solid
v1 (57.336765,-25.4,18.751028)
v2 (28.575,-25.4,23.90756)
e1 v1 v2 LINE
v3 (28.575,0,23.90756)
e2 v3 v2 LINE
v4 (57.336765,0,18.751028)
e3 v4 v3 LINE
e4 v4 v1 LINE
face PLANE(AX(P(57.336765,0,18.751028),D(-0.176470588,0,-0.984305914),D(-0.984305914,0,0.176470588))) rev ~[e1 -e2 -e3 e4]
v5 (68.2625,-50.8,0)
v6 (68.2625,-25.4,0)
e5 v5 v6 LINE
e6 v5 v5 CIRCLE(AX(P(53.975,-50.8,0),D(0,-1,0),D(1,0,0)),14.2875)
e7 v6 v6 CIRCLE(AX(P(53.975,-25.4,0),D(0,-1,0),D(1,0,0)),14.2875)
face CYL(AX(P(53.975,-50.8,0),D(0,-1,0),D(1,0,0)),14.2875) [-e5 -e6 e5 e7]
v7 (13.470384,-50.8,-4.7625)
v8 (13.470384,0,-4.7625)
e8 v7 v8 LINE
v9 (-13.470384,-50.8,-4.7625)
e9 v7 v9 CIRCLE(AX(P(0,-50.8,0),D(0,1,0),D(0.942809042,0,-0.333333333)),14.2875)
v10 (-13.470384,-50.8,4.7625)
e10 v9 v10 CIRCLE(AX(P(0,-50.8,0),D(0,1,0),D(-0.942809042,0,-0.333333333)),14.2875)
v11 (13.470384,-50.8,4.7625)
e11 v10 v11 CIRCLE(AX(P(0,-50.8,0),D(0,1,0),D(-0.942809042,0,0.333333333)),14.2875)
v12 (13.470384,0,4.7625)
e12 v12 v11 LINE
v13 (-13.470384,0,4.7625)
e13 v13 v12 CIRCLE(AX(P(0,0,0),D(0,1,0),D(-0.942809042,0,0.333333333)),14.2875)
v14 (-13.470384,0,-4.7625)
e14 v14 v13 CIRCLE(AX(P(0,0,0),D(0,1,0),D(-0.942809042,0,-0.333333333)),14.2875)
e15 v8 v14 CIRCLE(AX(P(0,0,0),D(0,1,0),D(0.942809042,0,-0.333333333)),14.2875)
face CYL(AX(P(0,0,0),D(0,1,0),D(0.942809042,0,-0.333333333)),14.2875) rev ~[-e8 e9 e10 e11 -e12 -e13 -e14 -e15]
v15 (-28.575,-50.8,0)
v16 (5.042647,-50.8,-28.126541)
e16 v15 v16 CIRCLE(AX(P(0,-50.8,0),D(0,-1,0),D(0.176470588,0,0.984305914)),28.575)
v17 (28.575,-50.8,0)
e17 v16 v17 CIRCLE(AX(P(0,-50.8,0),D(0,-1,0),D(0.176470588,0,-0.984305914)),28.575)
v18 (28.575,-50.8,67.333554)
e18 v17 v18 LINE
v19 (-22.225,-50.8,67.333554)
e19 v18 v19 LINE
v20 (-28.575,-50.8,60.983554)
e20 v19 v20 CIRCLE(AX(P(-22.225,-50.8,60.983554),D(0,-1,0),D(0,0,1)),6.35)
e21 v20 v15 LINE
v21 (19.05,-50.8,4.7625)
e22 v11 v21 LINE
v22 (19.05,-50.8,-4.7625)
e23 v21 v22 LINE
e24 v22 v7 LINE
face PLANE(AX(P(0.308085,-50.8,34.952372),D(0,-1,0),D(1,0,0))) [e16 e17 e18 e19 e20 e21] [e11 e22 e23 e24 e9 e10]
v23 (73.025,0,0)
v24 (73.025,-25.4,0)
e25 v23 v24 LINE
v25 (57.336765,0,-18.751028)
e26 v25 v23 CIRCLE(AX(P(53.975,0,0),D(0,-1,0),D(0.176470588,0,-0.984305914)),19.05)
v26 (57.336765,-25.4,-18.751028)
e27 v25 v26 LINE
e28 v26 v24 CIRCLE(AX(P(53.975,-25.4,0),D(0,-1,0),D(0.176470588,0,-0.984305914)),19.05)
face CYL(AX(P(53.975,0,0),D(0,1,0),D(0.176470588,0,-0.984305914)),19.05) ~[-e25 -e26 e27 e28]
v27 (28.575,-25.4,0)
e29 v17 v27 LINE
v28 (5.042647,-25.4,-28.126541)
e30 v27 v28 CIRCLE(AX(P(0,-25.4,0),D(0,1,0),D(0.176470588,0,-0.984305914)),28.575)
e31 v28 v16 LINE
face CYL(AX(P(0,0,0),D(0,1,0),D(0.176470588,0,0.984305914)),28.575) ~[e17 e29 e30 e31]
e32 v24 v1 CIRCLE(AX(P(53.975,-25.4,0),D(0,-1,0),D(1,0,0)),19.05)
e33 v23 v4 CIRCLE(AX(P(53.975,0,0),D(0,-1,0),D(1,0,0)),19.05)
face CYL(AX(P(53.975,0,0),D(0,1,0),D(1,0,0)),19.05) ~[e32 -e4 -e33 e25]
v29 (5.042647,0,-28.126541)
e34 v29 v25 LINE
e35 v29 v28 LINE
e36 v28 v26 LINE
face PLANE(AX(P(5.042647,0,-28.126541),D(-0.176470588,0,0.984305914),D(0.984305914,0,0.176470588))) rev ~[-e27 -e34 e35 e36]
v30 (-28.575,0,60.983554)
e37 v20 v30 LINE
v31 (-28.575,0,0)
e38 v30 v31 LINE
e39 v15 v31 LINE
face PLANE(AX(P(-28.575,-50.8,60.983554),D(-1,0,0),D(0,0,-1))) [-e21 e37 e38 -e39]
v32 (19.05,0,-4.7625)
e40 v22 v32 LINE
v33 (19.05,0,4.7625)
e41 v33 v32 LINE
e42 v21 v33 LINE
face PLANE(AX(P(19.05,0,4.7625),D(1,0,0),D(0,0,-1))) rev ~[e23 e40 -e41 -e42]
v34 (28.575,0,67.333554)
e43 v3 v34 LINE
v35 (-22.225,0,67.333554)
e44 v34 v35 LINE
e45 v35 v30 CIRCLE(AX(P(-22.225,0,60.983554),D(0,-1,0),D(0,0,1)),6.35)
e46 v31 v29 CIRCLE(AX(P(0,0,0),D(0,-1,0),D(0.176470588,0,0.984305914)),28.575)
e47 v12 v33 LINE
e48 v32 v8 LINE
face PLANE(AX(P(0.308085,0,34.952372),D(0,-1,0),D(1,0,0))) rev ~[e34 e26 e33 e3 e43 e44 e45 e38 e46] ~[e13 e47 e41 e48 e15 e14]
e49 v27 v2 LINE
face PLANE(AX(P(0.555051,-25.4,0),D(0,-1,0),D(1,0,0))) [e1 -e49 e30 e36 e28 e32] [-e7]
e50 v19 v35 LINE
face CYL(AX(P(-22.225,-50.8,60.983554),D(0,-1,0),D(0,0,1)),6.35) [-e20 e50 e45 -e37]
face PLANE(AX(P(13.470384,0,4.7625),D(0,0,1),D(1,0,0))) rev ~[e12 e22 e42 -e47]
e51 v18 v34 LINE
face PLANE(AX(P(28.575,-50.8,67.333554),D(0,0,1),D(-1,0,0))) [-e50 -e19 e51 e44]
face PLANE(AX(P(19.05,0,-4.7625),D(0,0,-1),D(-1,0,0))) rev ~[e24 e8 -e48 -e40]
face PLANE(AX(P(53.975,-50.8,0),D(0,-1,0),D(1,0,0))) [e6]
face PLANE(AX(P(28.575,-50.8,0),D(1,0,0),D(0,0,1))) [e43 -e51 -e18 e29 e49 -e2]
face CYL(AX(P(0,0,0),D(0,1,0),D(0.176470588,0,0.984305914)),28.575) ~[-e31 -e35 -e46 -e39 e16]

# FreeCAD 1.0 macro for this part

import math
import FreeCAD as App
import Part
import Sketcher

V = App.Vector
Q = App.Units.Quantity

doc = App.newDocument("Part")
body = doc.addObject("PartDesign::Body", "Body")

# Sketch on XZ plane
sketch1 = body.newObject("Sketcher::SketchObject", "Sketch")
sketch1.AttachmentSupport = (doc.getObject("XZ_Plane"), [""])
sketch1.MapMode = "FlatFace"
sketch1.addGeometry([
    Part.ArcOfCircle(Part.Circle(V(0, 0, 0), V(0, 0, 1), 29), math.radians(80), math.radians(280)),  # 0
    Part.LineSegment(V(5, -28, 0), V(57, -19, 0)),  # 1
    Part.ArcOfCircle(Part.Circle(V(54, 0, 0), V(0, 0, 1), 19), math.radians(-80), math.radians(0)),  # 2
    Part.ArcOfCircle(Part.Circle(V(54, 0, 0), V(0, 0, 1), 19), math.radians(0), math.radians(80)),  # 3
    Part.LineSegment(V(57, 19, 0), V(5, 28, 0)),  # 4
    Part.Circle(V(54, 0, 0), V(0, 0, 1), 14),  # 5
    Part.ArcOfCircle(Part.Circle(V(0, 0, 0), V(0, 0, 1), 14), math.radians(-161), math.radians(-19)),  # 6
    Part.ArcOfCircle(Part.Circle(V(0, 0, 0), V(0, 0, 1), 14), math.radians(161), math.radians(199)),  # 7
    Part.ArcOfCircle(Part.Circle(V(0, 0, 0), V(0, 0, 1), 14), math.radians(19), math.radians(161)),  # 8
    Part.LineSegment(V(13, 5, 0), V(19, 5, 0)),  # 9
    Part.LineSegment(V(19, 5, 0), V(19, -5, 0)),  # 10
    Part.LineSegment(V(19, -5, 0), V(13, -5, 0)),  # 11
], False)
sketch1.addConstraint([
    Sketcher.Constraint("Tangent", 0, 2, 1, 1),
    Sketcher.Constraint("Tangent", 1, 2, 2, 1),
    Sketcher.Constraint("Tangent", 2, 2, 3, 1),
    Sketcher.Constraint("Tangent", 3, 2, 4, 1),
    Sketcher.Constraint("Tangent", 4, 2, 0, 1),
    Sketcher.Constraint("Tangent", 6, 1, 7, 2),
    Sketcher.Constraint("Tangent", 7, 1, 8, 2),
    Sketcher.Constraint("Coincident", 8, 1, 9, 1),
    Sketcher.Constraint("Coincident", 9, 2, 10, 1),
    Sketcher.Constraint("Coincident", 10, 2, 11, 1),
    Sketcher.Constraint("Coincident", 11, 2, 6, 2),
    Sketcher.Constraint("Horizontal", 9),
    Sketcher.Constraint("Vertical", 10),
    Sketcher.Constraint("Horizontal", 11),
    Sketcher.Constraint("Coincident", 0, 3, -1, 1),
    Sketcher.Constraint("Coincident", 6, 3, -1, 1),
    Sketcher.Constraint("Coincident", 8, 3, -1, 1),
    Sketcher.Constraint("Coincident", 5, 3, 2, 3),
    Sketcher.Constraint("Equal", 2, 3),
    Sketcher.Constraint("Equal", 5, 6),
    Sketcher.Constraint("PointOnObject", 2, 3, -1),
    Sketcher.Constraint("PointOnObject", 2, 2, -1),
    Sketcher.Constraint("Horizontal", 7, 1, 8, 1),
    Sketcher.Constraint("Horizontal", 6, 1, 10, 2),
    Sketcher.Constraint("Vertical", 6, 1, 7, 1),
    Sketcher.Constraint("Radius", 2, Q("0.75 in")),
    Sketcher.Constraint("Diameter", 5, Q("1.125 in")),
    Sketcher.Constraint("Radius", 0, Q("1.125 in")),
    Sketcher.Constraint("DistanceY", 10, 2, 10, 1, Q("0.375 in")),
    Sketcher.Constraint("DistanceX", -1, 1, 9, 2, Q("0.75 in")),
    Sketcher.Constraint("DistanceX", -1, 1, 2, 3, Q("2.125 in")),
])
pad1 = body.newObject("PartDesign::Pad", "Pad")
pad1.Profile = sketch1
pad1.Length = Q("1 in")

# Sketch on XZ plane
sketch2 = body.newObject("Sketcher::SketchObject", "Sketch001")
sketch2.AttachmentSupport = (doc.getObject("XZ_Plane"), [""])
sketch2.MapMode = "FlatFace"
sketch2.addGeometry([
    Part.ArcOfCircle(Part.Circle(V(0, 0, 0), V(0, 0, 1), 29), math.radians(-80), math.radians(80)),  # 0
    Part.ArcOfCircle(Part.Circle(V(0, 0, 0), V(0, 0, 1), 29), math.radians(80), math.radians(280)),  # 1
    Part.ArcOfCircle(Part.Circle(V(0, 0, 0), V(0, 0, 1), 14), math.radians(-161), math.radians(-19)),  # 2
    Part.ArcOfCircle(Part.Circle(V(0, 0, 0), V(0, 0, 1), 14), math.radians(161), math.radians(199)),  # 3
    Part.ArcOfCircle(Part.Circle(V(0, 0, 0), V(0, 0, 1), 14), math.radians(19), math.radians(161)),  # 4
    Part.LineSegment(V(13, 5, 0), V(19, 5, 0)),  # 5
    Part.LineSegment(V(19, 5, 0), V(19, -5, 0)),  # 6
    Part.LineSegment(V(19, -5, 0), V(13, -5, 0)),  # 7
], False)
sketch2.addConstraint([
    Sketcher.Constraint("Tangent", 0, 1, 1, 2),
    Sketcher.Constraint("Coincident", 1, 1, 0, 2),
    Sketcher.Constraint("Tangent", 2, 1, 3, 2),
    Sketcher.Constraint("Tangent", 3, 1, 4, 2),
    Sketcher.Constraint("Coincident", 4, 1, 5, 1),
    Sketcher.Constraint("Coincident", 5, 2, 6, 1),
    Sketcher.Constraint("Coincident", 6, 2, 7, 1),
    Sketcher.Constraint("Coincident", 7, 2, 2, 2),
    Sketcher.Constraint("Horizontal", 5),
    Sketcher.Constraint("Vertical", 6),
    Sketcher.Constraint("Horizontal", 7),
    Sketcher.Constraint("Coincident", 0, 3, -1, 1),
    Sketcher.Constraint("Coincident", 2, 3, -1, 1),
    Sketcher.Constraint("Coincident", 4, 3, -1, 1),
    Sketcher.Constraint("Horizontal", 3, 1, 4, 1),
    Sketcher.Constraint("Horizontal", 2, 1, 6, 2),
    Sketcher.Constraint("Vertical", 0, 1, 1, 1),
    Sketcher.Constraint("Vertical", 2, 1, 3, 1),
    Sketcher.Constraint("Radius", 0, Q("1.125 in")),
    Sketcher.Constraint("Radius", 2, Q("0.5625 in")),
    Sketcher.Constraint("DistanceY", 6, 2, 6, 1, Q("0.375 in")),
    Sketcher.Constraint("DistanceX", -1, 1, 5, 2, Q("0.75 in")),
    Sketcher.Constraint("DistanceY", 0, 1, -1, 1, Q("28.126541 mm")),
])
pad2 = body.newObject("PartDesign::Pad", "Pad001")
pad2.Profile = sketch2
pad2.Length = Q("2 in")

# Sketch on XZ plane
sketch3 = body.newObject("Sketcher::SketchObject", "Sketch002")
sketch3.AttachmentSupport = (doc.getObject("XZ_Plane"), [""])
sketch3.MapMode = "FlatFace"
sketch3.AttachmentOffset = App.Placement(V(0, 0, 2 * 25.4), App.Rotation())
sketch3.addGeometry([
    Part.LineSegment(V(-29, 61, 0), V(-29, 0, 0)),  # 0
    Part.ArcOfCircle(Part.Circle(V(0, 0, 0), V(0, 0, 1), 29), math.radians(0), math.radians(180)),  # 1
    Part.LineSegment(V(29, 0, 0), V(29, 67, 0)),  # 2
    Part.LineSegment(V(29, 67, 0), V(-22, 67, 0)),  # 3
    Part.ArcOfCircle(Part.Circle(V(-22, 61, 0), V(0, 0, 1), 6), math.radians(90), math.radians(180)),  # 4
    Part.Circle(V(54, 0, 0), V(0, 0, 1), 14),  # 5
], False)
sketch3.addConstraint([
    Sketcher.Constraint("Tangent", 0, 2, 1, 2),
    Sketcher.Constraint("Tangent", 1, 1, 2, 1),
    Sketcher.Constraint("Coincident", 2, 2, 3, 1),
    Sketcher.Constraint("Tangent", 3, 2, 4, 1),
    Sketcher.Constraint("Tangent", 4, 2, 0, 1),
    Sketcher.Constraint("Vertical", 0),
    Sketcher.Constraint("Vertical", 2),
    Sketcher.Constraint("Horizontal", 3),
    Sketcher.Constraint("Coincident", 1, 3, -1, 1),
    Sketcher.Constraint("PointOnObject", 5, 3, -1),
    Sketcher.Constraint("DistanceX", 3, 2, 3, 1, Q("2 in")),
    Sketcher.Constraint("Radius", 4, Q("0.25 in")),
    Sketcher.Constraint("Diameter", 5, Q("1.125 in")),
    Sketcher.Constraint("DistanceX", 4, 3, 5, 3, Q("3 in")),
    Sketcher.Constraint("DistanceY", 0, 2, 0, 1, Q("60.983554 mm")),
])
pad3 = body.newObject("PartDesign::Pad", "Pad002")
pad3.Profile = sketch3
pad3.Length = Q("2 in")
pad3.Reversed = True

doc.recompute()
